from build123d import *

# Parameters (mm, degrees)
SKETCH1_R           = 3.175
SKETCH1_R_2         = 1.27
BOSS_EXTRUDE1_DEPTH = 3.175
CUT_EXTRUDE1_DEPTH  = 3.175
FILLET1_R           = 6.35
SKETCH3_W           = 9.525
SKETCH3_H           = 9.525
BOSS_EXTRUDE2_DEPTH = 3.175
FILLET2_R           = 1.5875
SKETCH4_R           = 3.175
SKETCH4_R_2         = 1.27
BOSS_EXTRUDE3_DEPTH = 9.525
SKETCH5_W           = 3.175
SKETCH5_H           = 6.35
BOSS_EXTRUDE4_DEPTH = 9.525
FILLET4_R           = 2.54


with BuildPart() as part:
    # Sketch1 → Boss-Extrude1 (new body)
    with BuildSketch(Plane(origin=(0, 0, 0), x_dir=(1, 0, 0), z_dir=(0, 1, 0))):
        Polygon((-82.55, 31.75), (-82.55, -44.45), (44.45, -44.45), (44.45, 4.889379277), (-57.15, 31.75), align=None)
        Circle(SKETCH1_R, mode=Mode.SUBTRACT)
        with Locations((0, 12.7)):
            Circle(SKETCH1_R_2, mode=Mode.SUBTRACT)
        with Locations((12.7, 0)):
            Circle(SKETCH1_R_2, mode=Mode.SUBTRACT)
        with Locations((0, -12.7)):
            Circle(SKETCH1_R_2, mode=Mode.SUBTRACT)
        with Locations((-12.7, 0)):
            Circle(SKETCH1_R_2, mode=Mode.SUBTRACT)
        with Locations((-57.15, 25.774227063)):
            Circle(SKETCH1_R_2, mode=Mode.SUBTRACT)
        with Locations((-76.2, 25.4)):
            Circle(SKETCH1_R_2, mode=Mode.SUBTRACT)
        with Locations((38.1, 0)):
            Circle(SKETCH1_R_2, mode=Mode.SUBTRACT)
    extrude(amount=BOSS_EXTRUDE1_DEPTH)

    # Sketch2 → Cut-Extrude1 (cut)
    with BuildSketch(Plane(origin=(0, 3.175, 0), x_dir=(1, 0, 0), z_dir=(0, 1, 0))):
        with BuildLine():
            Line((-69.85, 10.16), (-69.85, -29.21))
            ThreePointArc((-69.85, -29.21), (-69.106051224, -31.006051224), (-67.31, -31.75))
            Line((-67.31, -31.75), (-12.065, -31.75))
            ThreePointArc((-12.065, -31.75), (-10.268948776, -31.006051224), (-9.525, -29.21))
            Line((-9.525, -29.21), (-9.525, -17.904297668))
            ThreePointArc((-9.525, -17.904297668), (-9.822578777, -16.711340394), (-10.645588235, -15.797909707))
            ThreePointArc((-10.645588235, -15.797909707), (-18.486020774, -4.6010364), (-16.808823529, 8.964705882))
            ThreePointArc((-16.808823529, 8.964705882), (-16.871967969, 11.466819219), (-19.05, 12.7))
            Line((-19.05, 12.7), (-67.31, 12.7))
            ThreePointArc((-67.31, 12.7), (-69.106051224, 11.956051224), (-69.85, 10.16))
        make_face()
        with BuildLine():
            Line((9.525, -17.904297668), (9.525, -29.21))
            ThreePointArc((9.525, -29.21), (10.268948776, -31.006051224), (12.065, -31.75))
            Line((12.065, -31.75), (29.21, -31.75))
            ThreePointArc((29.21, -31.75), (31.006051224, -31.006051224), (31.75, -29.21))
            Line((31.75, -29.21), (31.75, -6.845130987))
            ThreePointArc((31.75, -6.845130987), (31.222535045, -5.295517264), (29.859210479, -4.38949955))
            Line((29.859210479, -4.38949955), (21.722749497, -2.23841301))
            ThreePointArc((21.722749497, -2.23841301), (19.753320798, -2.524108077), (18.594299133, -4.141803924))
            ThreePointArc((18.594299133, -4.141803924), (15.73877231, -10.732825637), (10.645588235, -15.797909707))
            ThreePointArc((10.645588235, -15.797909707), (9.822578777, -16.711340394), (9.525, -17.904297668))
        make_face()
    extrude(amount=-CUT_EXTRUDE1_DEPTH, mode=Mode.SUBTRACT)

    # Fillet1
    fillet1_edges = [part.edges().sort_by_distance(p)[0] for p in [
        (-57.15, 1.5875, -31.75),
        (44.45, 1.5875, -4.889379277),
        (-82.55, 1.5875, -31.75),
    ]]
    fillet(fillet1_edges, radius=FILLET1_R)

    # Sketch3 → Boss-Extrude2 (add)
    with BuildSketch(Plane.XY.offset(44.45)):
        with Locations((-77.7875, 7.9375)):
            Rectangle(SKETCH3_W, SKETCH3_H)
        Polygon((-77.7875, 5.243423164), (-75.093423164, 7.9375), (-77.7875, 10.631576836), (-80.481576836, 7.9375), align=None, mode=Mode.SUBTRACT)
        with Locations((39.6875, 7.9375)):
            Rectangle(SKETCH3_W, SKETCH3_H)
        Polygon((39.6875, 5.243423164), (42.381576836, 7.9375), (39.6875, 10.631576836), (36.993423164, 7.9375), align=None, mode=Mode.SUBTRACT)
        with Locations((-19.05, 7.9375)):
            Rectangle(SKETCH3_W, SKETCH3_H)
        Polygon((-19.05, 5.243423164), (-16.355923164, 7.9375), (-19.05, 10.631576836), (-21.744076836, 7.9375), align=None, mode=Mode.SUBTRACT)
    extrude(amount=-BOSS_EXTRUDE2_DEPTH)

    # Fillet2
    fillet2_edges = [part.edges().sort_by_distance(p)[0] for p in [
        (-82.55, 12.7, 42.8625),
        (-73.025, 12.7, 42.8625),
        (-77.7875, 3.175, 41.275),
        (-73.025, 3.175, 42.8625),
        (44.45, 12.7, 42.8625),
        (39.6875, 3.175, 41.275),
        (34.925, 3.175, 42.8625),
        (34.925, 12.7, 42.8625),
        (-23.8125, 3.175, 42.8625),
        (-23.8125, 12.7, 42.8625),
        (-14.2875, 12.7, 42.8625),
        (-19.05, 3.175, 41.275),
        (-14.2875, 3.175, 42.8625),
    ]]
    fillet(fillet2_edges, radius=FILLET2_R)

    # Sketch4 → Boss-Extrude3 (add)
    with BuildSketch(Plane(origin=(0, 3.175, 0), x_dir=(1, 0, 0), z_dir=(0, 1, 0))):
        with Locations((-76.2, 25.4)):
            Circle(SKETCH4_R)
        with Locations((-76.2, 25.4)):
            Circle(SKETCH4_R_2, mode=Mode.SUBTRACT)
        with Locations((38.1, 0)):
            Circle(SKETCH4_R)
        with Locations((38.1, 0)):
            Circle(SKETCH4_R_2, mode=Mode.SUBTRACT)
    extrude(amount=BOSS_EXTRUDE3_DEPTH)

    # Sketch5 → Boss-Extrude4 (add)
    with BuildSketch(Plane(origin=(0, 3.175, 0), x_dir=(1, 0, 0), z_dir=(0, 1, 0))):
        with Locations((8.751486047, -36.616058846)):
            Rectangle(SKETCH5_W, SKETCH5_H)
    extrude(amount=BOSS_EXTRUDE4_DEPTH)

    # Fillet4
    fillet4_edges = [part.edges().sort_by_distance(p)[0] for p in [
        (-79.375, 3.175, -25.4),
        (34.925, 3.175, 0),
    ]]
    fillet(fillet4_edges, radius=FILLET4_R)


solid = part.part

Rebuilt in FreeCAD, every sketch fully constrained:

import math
import FreeCAD as App
import Part
import Sketcher
Q = App.Units.Quantity


def edges_at(feature, points):
    """Names of the edges that pass closest to the given points."""
    edges = feature.Shape.Edges
    near = lambda p: min(range(len(edges)), key=lambda i: edges[i].distToShape(Part.Vertex(*p))[0])
    return sorted({f"Edge{near(p) + 1}" for p in points})

doc = App.newDocument("Part")
params = doc.addObject("Spreadsheet::Sheet", "Params")
for row, (alias, value) in enumerate([
    ("sketch1_diameter", "0.1 in"),
    ("sketch1_diameter2", "0.25 in"),
    ("sketch1_width", "5 in"),
    ("sketch1_width2", "1 in"),
    ("sketch1_height", "3 in"),
    ("pad1_length", "0.125 in"),
    ("sketch2_radius", "0.1 in"),
    ("sketch2_radius2", "0.75 in"),
    ("sketch2_width", "1.9 in"),
    ("sketch2_height", "1.55 in"),
    ("sketch2_width2", "2.175 in"),
    ("pocket1_length", "0.125 in"),
    ("fillet_radius", "0.25 in"),
    ("sketch3_length", "0.15 in"),
    ("sketch3_width", "0.375 in"),
    ("pad2_length", "0.125 in"),
    ("fillet2_radius", "0.0625 in"),
    ("sketch4_diameter", "0.1 in"),
    ("sketch4_diameter2", "0.25 in"),
    ("pad3_length", "0.375 in"),
    ("sketch5_height", "0.25 in"),
    ("sketch5_width", "0.125 in"),
    ("pad4_length", "0.375 in"),
    ("fillet3_radius", "0.1 in"),
], start=1):
    params.set(f"A{row}", alias)
    params.set(f"B{row}", "=" + value)
    params.setAlias(f"B{row}", alias)

body = doc.addObject("PartDesign::Body", "Body")

# Sketch on XZ plane
sketch1 = body.newObject("Sketcher::SketchObject", "Sketch")
sketch1.AttachmentSupport = (doc.getObject("XZ_Plane"), [""])
sketch1.MapMode = "FlatFace"
sketch1.addGeometry([
    Part.LineSegment(App.Vector(-82.5, -31.8, 0), App.Vector(-82.5, 44.5, 0)),  # 0
    Part.LineSegment(App.Vector(-82.5, 44.5, 0), App.Vector(44.5, 44.5, 0)),  # 1
    Part.LineSegment(App.Vector(44.5, 44.5, 0), App.Vector(44.5, -4.9, 0)),  # 2
    Part.LineSegment(App.Vector(44.5, -4.9, 0), App.Vector(-57.1, -31.8, 0)),  # 3
    Part.LineSegment(App.Vector(-57.1, -31.8, 0), App.Vector(-82.5, -31.8, 0)),  # 4
    Part.Circle(App.Vector(0, 12.7, 0), App.Vector(0, 0, 1), 1.3),  # 5
    Part.Circle(App.Vector(-12.7, 0, 0), App.Vector(0, 0, 1), 1.3),  # 6
    Part.Circle(App.Vector(0, 0, 0), App.Vector(0, 0, 1), 3.2),  # 7
    Part.Circle(App.Vector(12.7, 0, 0), App.Vector(0, 0, 1), 1.3),  # 8
    Part.Circle(App.Vector(38.1, 0, 0), App.Vector(0, 0, 1), 1.3),  # 9
    Part.Circle(App.Vector(-76.2, -25.4, 0), App.Vector(0, 0, 1), 1.3),  # 10
    Part.Circle(App.Vector(-57.1, -25.8, 0), App.Vector(0, 0, 1), 1.3),  # 11
    Part.Circle(App.Vector(0, -12.7, 0), App.Vector(0, 0, 1), 1.3),  # 12
], False)
sketch1.addConstraint([
    Sketcher.Constraint("Coincident", 0, 2, 1, 1),
    Sketcher.Constraint("Coincident", 1, 2, 2, 1),
    Sketcher.Constraint("Coincident", 2, 2, 3, 1),
    Sketcher.Constraint("Coincident", 3, 2, 4, 1),
    Sketcher.Constraint("Coincident", 4, 2, 0, 1),
    Sketcher.Constraint("Vertical", 0),
    Sketcher.Constraint("Horizontal", 1),
    Sketcher.Constraint("Vertical", 2),
    Sketcher.Constraint("Horizontal", 4),
    Sketcher.Constraint("Coincident", 7, 3, -1, 1),
    Sketcher.Constraint("Equal", 5, 6),
    Sketcher.Constraint("Equal", 6, 8),
    Sketcher.Constraint("Equal", 8, 9),
    Sketcher.Constraint("Equal", 9, 10),
    Sketcher.Constraint("Equal", 10, 11),
    Sketcher.Constraint("Equal", 11, 12),
    Sketcher.Constraint("Symmetric", 6, 3, 8, 3, -1, 1),
    Sketcher.Constraint("Symmetric", 5, 3, 12, 3, -1, 1),
    Sketcher.Constraint("PointOnObject", 5, 3, -2),
    Sketcher.Constraint("PointOnObject", 6, 3, -1),
    Sketcher.Constraint("PointOnObject", 9, 3, -1),
    Sketcher.Constraint("Vertical", 11, 3, 3, 2),
    Sketcher.Constraint("Diameter", 5, Q("0.1 in")),
    Sketcher.Constraint("Diameter", 7, Q("0.25 in")),
    Sketcher.Constraint("DistanceX", 1, 1, 1, 2, Q("5 in")),
    Sketcher.Constraint("DistanceX", 4, 2, 4, 1, Q("1 in")),
    Sketcher.Constraint("DistanceY", 0, 1, 0, 2, Q("3 in")),
    Sketcher.Constraint("DistanceX", 10, 3, -1, 1, Q("3 in")),
    Sketcher.Constraint("DistanceY", 10, 3, -1, 1, Q("1 in")),
    Sketcher.Constraint("DistanceX", 6, 3, 8, 3, Q("1 in")),
    Sketcher.Constraint("DistanceX", 8, 3, 9, 3, Q("1 in")),
    Sketcher.Constraint("DistanceY", 12, 3, 5, 3, Q("1 in")),
    Sketcher.Constraint("DistanceX", 11, 3, -1, 1, Q("2.25 in")),
    Sketcher.Constraint("DistanceY", -1, 1, 0, 2, Q("1.75 in")),
    Sketcher.Constraint("DistanceY", 2, 2, 2, 1, 49.339379),
    Sketcher.Constraint("DistanceY", 11, 3, -1, 1, 25.774227),
])
sketch1.setExpression("Constraints[22]", "Params.sketch1_diameter")
sketch1.setExpression("Constraints[23]", "Params.sketch1_diameter2")
sketch1.setExpression("Constraints[24]", "Params.sketch1_width")
sketch1.setExpression("Constraints[25]", "Params.sketch1_width2")
sketch1.setExpression("Constraints[26]", "Params.sketch1_height")
pad1 = body.newObject("PartDesign::Pad", "Pad")
pad1.Profile = sketch1
pad1.setExpression("Length", "Params.pad1_length")
pad1.Reversed = True

# Sketch on XZ plane
sketch2 = body.newObject("Sketcher::SketchObject", "Sketch001")
sketch2.AttachmentSupport = (doc.getObject("XZ_Plane"), [""])
sketch2.MapMode = "FlatFace"
sketch2.AttachmentOffset = App.Placement(App.Vector(0, 0, -0.125 * 25.4), App.Rotation())
sketch2.addGeometry([
    Part.LineSegment(App.Vector(-69.8, -10.2, 0), App.Vector(-69.8, 29.2, 0)),  # 0
    Part.ArcOfCircle(Part.Circle(App.Vector(-67.3, 29.2, 0), App.Vector(0, 0, 1), 2.5), math.radians(90), math.radians(180)),  # 1
    Part.LineSegment(App.Vector(-67.3, 31.8, 0), App.Vector(-12.1, 31.8, 0)),  # 2
    Part.ArcOfCircle(Part.Circle(App.Vector(-12.1, 29.2, 0), App.Vector(0, 0, 1), 2.5), math.radians(0), math.radians(90)),  # 3
    Part.LineSegment(App.Vector(-9.5, 29.2, 0), App.Vector(-9.5, 17.9, 0)),  # 4
    Part.ArcOfCircle(Part.Circle(App.Vector(-12.1, 17.9, 0), App.Vector(0, 0, 1), 2.5), math.radians(-56), math.radians(0)),  # 5
    Part.ArcOfCircle(Part.Circle(App.Vector(0, 0, 0), App.Vector(0, 0, 1), 19), math.radians(124), math.radians(208)),  # 6
    Part.ArcOfCircle(Part.Circle(App.Vector(-19.1, -10.2, 0), App.Vector(0, 0, 1), 2.5), math.radians(-90), math.radians(28)),  # 7
    Part.LineSegment(App.Vector(-19.1, -12.7, 0), App.Vector(-67.3, -12.7, 0)),  # 8
    Part.ArcOfCircle(Part.Circle(App.Vector(-67.3, -10.2, 0), App.Vector(0, 0, 1), 2.5), math.radians(-180), math.radians(-90)),  # 9
    Part.LineSegment(App.Vector(9.5, 17.9, 0), App.Vector(9.5, 29.2, 0)),  # 10
    Part.ArcOfCircle(Part.Circle(App.Vector(12.1, 29.2, 0), App.Vector(0, 0, 1), 2.5), math.radians(90), math.radians(180)),  # 11
    Part.LineSegment(App.Vector(12.1, 31.8, 0), App.Vector(29.2, 31.8, 0)),  # 12
    Part.ArcOfCircle(Part.Circle(App.Vector(29.2, 29.2, 0), App.Vector(0, 0, 1), 2.5), math.radians(0), math.radians(90)),  # 13
    Part.LineSegment(App.Vector(31.8, 29.2, 0), App.Vector(31.8, 6.8, 0)),  # 14
    Part.ArcOfCircle(Part.Circle(App.Vector(29.2, 6.8, 0), App.Vector(0, 0, 1), 2.5), math.radians(-75), math.radians(0)),  # 15
    Part.LineSegment(App.Vector(29.9, 4.4, 0), App.Vector(21.7, 2.2, 0)),  # 16
    Part.ArcOfCircle(Part.Circle(App.Vector(21.1, 4.7, 0), App.Vector(0, 0, 1), 2.5), math.radians(-167), math.radians(-75)),  # 17
    Part.ArcOfCircle(Part.Circle(App.Vector(0, 0, 0), App.Vector(0, 0, 1), 19.1), math.radians(13), math.radians(56)),  # 18
    Part.ArcOfCircle(Part.Circle(App.Vector(12.1, 17.9, 0), App.Vector(0, 0, 1), 2.5), math.radians(-180), math.radians(-124)),  # 19
], False)
sketch2.addConstraint([
    Sketcher.Constraint("Tangent", 0, 2, 1, 2),
    Sketcher.Constraint("Tangent", 1, 1, 2, 1),
    Sketcher.Constraint("Tangent", 2, 2, 3, 2),
    Sketcher.Constraint("Tangent", 3, 1, 4, 1),
    Sketcher.Constraint("Tangent", 4, 2, 5, 2),
    Sketcher.Constraint("Tangent", 5, 1, 6, 1),
    Sketcher.Constraint("Tangent", 6, 2, 7, 2),
    Sketcher.Constraint("Tangent", 7, 1, 8, 1),
    Sketcher.Constraint("Tangent", 8, 2, 9, 2),
    Sketcher.Constraint("Tangent", 9, 1, 0, 1),
    Sketcher.Constraint("Tangent", 10, 2, 11, 2),
    Sketcher.Constraint("Tangent", 11, 1, 12, 1),
    Sketcher.Constraint("Tangent", 12, 2, 13, 2),
    Sketcher.Constraint("Tangent", 13, 1, 14, 1),
    Sketcher.Constraint("Tangent", 14, 2, 15, 2),
    Sketcher.Constraint("Tangent", 15, 1, 16, 1),
    Sketcher.Constraint("Tangent", 16, 2, 17, 2),
    Sketcher.Constraint("Tangent", 17, 1, 18, 1),
    Sketcher.Constraint("Tangent", 18, 2, 19, 2),
    Sketcher.Constraint("Tangent", 19, 1, 10, 1),
    Sketcher.Constraint("Vertical", 0),
    Sketcher.Constraint("Horizontal", 2),
    Sketcher.Constraint("Vertical", 4),
    Sketcher.Constraint("Horizontal", 8),
    Sketcher.Constraint("Vertical", 10),
    Sketcher.Constraint("Horizontal", 12),
    Sketcher.Constraint("Vertical", 14),
    Sketcher.Constraint("Coincident", 6, 3, -1, 1),
    Sketcher.Constraint("Coincident", 18, 3, -1, 1),
    Sketcher.Constraint("Equal", 1, 3),
    Sketcher.Constraint("Equal", 3, 5),
    Sketcher.Constraint("Equal", 5, 7),
    Sketcher.Constraint("Equal", 7, 9),
    Sketcher.Constraint("Equal", 9, 11),
    Sketcher.Constraint("Equal", 11, 13),
    Sketcher.Constraint("Equal", 13, 15),
    Sketcher.Constraint("Equal", 15, 17),
    Sketcher.Constraint("Equal", 6, 18),
    Sketcher.Constraint("Equal", 17, 19),
    Sketcher.Constraint("Symmetric", 3, 3, 11, 3, -2),
    Sketcher.Constraint("Radius", 1, Q("0.1 in")),
    Sketcher.Constraint("Radius", 6, Q("0.75 in")),
    Sketcher.Constraint("DistanceX", 8, 2, 8, 1, Q("1.9 in")),
    Sketcher.Constraint("DistanceY", 0, 1, 0, 2, Q("1.55 in")),
    Sketcher.Constraint("DistanceY", 7, 3, -1, 1, Q("0.4 in")),
    Sketcher.Constraint("DistanceX", 7, 3, 13, 3, Q("1.9 in")),
    Sketcher.Constraint("DistanceX", 2, 1, 2, 2, Q("2.175 in")),
    Sketcher.Constraint("DistanceY", 14, 2, 14, 1, 22.364869),
    Sketcher.Constraint("DistanceY", -1, 1, 15, 1, 4.3895),
])
sketch2.setExpression("Constraints[40]", "Params.sketch2_radius")
sketch2.setExpression("Constraints[41]", "Params.sketch2_radius2")
sketch2.setExpression("Constraints[42]", "Params.sketch2_width")
sketch2.setExpression("Constraints[43]", "Params.sketch2_height")
sketch2.setExpression("Constraints[46]", "Params.sketch2_width2")
pocket1 = body.newObject("PartDesign::Pocket", "Pocket")
pocket1.Profile = sketch2
pocket1.setExpression("Length", "Params.pocket1_length")
pocket1.Reversed = True
doc.recompute()

fillet = body.newObject("PartDesign::Fillet", "Fillet")
fillet.Base = (pocket1, edges_at(pocket1, [(-57.15, 1.587, -31.75), (44.45, 1.587, -4.889), (-82.55, 1.587, -31.75)]))
fillet.setExpression("Radius", "Params.fillet_radius")

# Sketch on XY plane
sketch3 = body.newObject("Sketcher::SketchObject", "Sketch002")
sketch3.AttachmentSupport = (doc.getObject("XY_Plane"), [""])
sketch3.MapMode = "FlatFace"
sketch3.AttachmentOffset = App.Placement(App.Vector(0, 0, 1.75 * 25.4), App.Rotation())
sketch3.addGeometry([
    Part.LineSegment(App.Vector(-82.5, 12.7, 0), App.Vector(-82.5, 3.2, 0)),  # 0
    Part.LineSegment(App.Vector(-82.5, 3.2, 0), App.Vector(-73, 3.2, 0)),  # 1
    Part.LineSegment(App.Vector(-73, 3.2, 0), App.Vector(-73, 12.7, 0)),  # 2
    Part.LineSegment(App.Vector(-73, 12.7, 0), App.Vector(-82.5, 12.7, 0)),  # 3
    Part.LineSegment(App.Vector(-75.1, 7.9, 0), App.Vector(-77.8, 5.2, 0)),  # 4
    Part.LineSegment(App.Vector(-77.8, 5.2, 0), App.Vector(-80.5, 7.9, 0)),  # 5
    Part.LineSegment(App.Vector(-80.5, 7.9, 0), App.Vector(-77.8, 10.6, 0)),  # 6
    Part.LineSegment(App.Vector(-77.8, 10.6, 0), App.Vector(-75.1, 7.9, 0)),  # 7
    Part.LineSegment(App.Vector(34.9, 12.7, 0), App.Vector(34.9, 3.2, 0)),  # 8
    Part.LineSegment(App.Vector(34.9, 3.2, 0), App.Vector(44.5, 3.2, 0)),  # 9
    Part.LineSegment(App.Vector(44.5, 3.2, 0), App.Vector(44.5, 12.7, 0)),  # 10
    Part.LineSegment(App.Vector(44.5, 12.7, 0), App.Vector(34.9, 12.7, 0)),  # 11
    Part.LineSegment(App.Vector(42.4, 7.9, 0), App.Vector(39.7, 5.2, 0)),  # 12
    Part.LineSegment(App.Vector(39.7, 5.2, 0), App.Vector(37, 7.9, 0)),  # 13
    Part.LineSegment(App.Vector(37, 7.9, 0), App.Vector(39.7, 10.6, 0)),  # 14
    Part.LineSegment(App.Vector(39.7, 10.6, 0), App.Vector(42.4, 7.9, 0)),  # 15
    Part.LineSegment(App.Vector(-23.8, 12.7, 0), App.Vector(-23.8, 3.2, 0)),  # 16
    Part.LineSegment(App.Vector(-23.8, 3.2, 0), App.Vector(-14.3, 3.2, 0)),  # 17
    Part.LineSegment(App.Vector(-14.3, 3.2, 0), App.Vector(-14.3, 12.7, 0)),  # 18
    Part.LineSegment(App.Vector(-14.3, 12.7, 0), App.Vector(-23.8, 12.7, 0)),  # 19
    Part.LineSegment(App.Vector(-16.4, 7.9, 0), App.Vector(-19.1, 5.2, 0)),  # 20
    Part.LineSegment(App.Vector(-19.1, 5.2, 0), App.Vector(-21.7, 7.9, 0)),  # 21
    Part.LineSegment(App.Vector(-21.7, 7.9, 0), App.Vector(-19.1, 10.6, 0)),  # 22
    Part.LineSegment(App.Vector(-19.1, 10.6, 0), App.Vector(-16.4, 7.9, 0)),  # 23
], False)
sketch3.addConstraint([
    Sketcher.Constraint("Coincident", 0, 2, 1, 1),
    Sketcher.Constraint("Coincident", 1, 2, 2, 1),
    Sketcher.Constraint("Coincident", 2, 2, 3, 1),
    Sketcher.Constraint("Coincident", 3, 2, 0, 1),
    Sketcher.Constraint("Coincident", 4, 2, 5, 1),
    Sketcher.Constraint("Coincident", 5, 2, 6, 1),
    Sketcher.Constraint("Coincident", 6, 2, 7, 1),
    Sketcher.Constraint("Coincident", 7, 2, 4, 1),
    Sketcher.Constraint("Coincident", 8, 2, 9, 1),
    Sketcher.Constraint("Coincident", 9, 2, 10, 1),
    Sketcher.Constraint("Coincident", 10, 2, 11, 1),
    Sketcher.Constraint("Coincident", 11, 2, 8, 1),
    Sketcher.Constraint("Coincident", 12, 2, 13, 1),
    Sketcher.Constraint("Coincident", 13, 2, 14, 1),
    Sketcher.Constraint("Coincident", 14, 2, 15, 1),
    Sketcher.Constraint("Coincident", 15, 2, 12, 1),
    Sketcher.Constraint("Coincident", 16, 2, 17, 1),
    Sketcher.Constraint("Coincident", 17, 2, 18, 1),
    Sketcher.Constraint("Coincident", 18, 2, 19, 1),
    Sketcher.Constraint("Coincident", 19, 2, 16, 1),
    Sketcher.Constraint("Coincident", 20, 2, 21, 1),
    Sketcher.Constraint("Coincident", 21, 2, 22, 1),
    Sketcher.Constraint("Coincident", 22, 2, 23, 1),
    Sketcher.Constraint("Coincident", 23, 2, 20, 1),
    Sketcher.Constraint("Vertical", 0),
    Sketcher.Constraint("Horizontal", 1),
    Sketcher.Constraint("Vertical", 2),
    Sketcher.Constraint("Horizontal", 3),
    Sketcher.Constraint("Vertical", 8),
    Sketcher.Constraint("Horizontal", 9),
    Sketcher.Constraint("Vertical", 10),
    Sketcher.Constraint("Horizontal", 11),
    Sketcher.Constraint("Vertical", 16),
    Sketcher.Constraint("Horizontal", 17),
    Sketcher.Constraint("Vertical", 18),
    Sketcher.Constraint("Horizontal", 19),
    Sketcher.Constraint("Perpendicular", 4, 5),
    Sketcher.Constraint("Perpendicular", 5, 6),
    Sketcher.Constraint("Perpendicular", 6, 7),
    Sketcher.Constraint("Perpendicular", 7, 12),
    Sketcher.Constraint("Perpendicular", 12, 13),
    Sketcher.Constraint("Perpendicular", 13, 14),
    Sketcher.Constraint("Perpendicular", 14, 15),
    Sketcher.Constraint("Perpendicular", 15, 20),
    Sketcher.Constraint("Perpendicular", 20, 21),
    Sketcher.Constraint("Perpendicular", 21, 22),
    Sketcher.Constraint("Perpendicular", 22, 23),
    Sketcher.Constraint("Horizontal", 5, 2, 7, 2),
    Sketcher.Constraint("Horizontal", 1, 2, 8, 2),
    Sketcher.Constraint("Horizontal", 3, 2, 10, 2),
    Sketcher.Constraint("Horizontal", 4, 2, 12, 2),
    Sketcher.Constraint("Horizontal", 7, 2, 13, 2),
    Sketcher.Constraint("Horizontal", 6, 2, 14, 2),
    Sketcher.Constraint("Horizontal", 9, 2, 16, 2),
    Sketcher.Constraint("Horizontal", 11, 2, 18, 2),
    Sketcher.Constraint("Horizontal", 12, 2, 20, 2),
    Sketcher.Constraint("Horizontal", 15, 2, 21, 2),
    Sketcher.Constraint("Horizontal", 14, 2, 22, 2),
    Sketcher.Constraint("Vertical", 4, 2, 6, 2),
    Sketcher.Constraint("Equal", 3, 9),
    Sketcher.Constraint("Equal", 11, 17),
    Sketcher.Constraint("Equal", 19, 0),
    Sketcher.Constraint("DistanceY", -1, 1, 2, 2, Q("0.5 in")),
    Sketcher.Constraint("Distance", 4, Q("0.15 in")),
    Sketcher.Constraint("DistanceX", 1, 1, 1, 2, Q("0.375 in")),
    Sketcher.Constraint("DistanceX", 0, 2, -1, 1, Q("3.25 in")),
    Sketcher.Constraint("DistanceX", -1, 1, 9, 2, Q("1.75 in")),
    Sketcher.Constraint("DistanceX", 20, 2, -1, 1, Q("0.75 in")),
    Sketcher.Constraint("DistanceX", 4, 2, -1, 1, Q("3.0625 in")),
    Sketcher.Constraint("DistanceY", -1, 1, 5, 2, Q("0.3125 in")),
    Sketcher.Constraint("DistanceX", -1, 1, 12, 2, Q("1.5625 in")),
    Sketcher.Constraint("DistanceX", 16, 2, -1, 1, Q("0.9375 in")),
])
sketch3.setExpression("Constraints[63]", "Params.sketch3_length")
sketch3.setExpression("Constraints[64]", "Params.sketch3_width")
pad2 = body.newObject("PartDesign::Pad", "Pad001")
pad2.Profile = sketch3
pad2.setExpression("Length", "Params.pad2_length")
pad2.Reversed = True
doc.recompute()

fillet2 = body.newObject("PartDesign::Fillet", "Fillet001")
fillet2.Base = (pad2, edges_at(pad2, [
    (-82.55, 12.7, 42.862),
    (-73.025, 12.7, 42.862),
    (-77.787, 3.175, 41.275),
    (-73.025, 3.175, 42.862),
    (44.45, 12.7, 42.862),
    (39.688, 3.175, 41.275),
    (34.925, 3.175, 42.862),
    (34.925, 12.7, 42.862),
    (-23.812, 3.175, 42.862),
    (-23.812, 12.7, 42.862),
    (-14.287, 12.7, 42.862),
    (-19.05, 3.175, 41.275),
    (-14.287, 3.175, 42.862),
]))
fillet2.setExpression("Radius", "Params.fillet2_radius")

# Sketch on XZ plane
sketch4 = body.newObject("Sketcher::SketchObject", "Sketch003")
sketch4.AttachmentSupport = (doc.getObject("XZ_Plane"), [""])
sketch4.MapMode = "FlatFace"
sketch4.AttachmentOffset = App.Placement(App.Vector(0, 0, -0.125 * 25.4), App.Rotation())
sketch4.addGeometry([
    Part.Circle(App.Vector(-76.2, -25.4, 0), App.Vector(0, 0, 1), 3.2),
    Part.Circle(App.Vector(-76.2, -25.4, 0), App.Vector(0, 0, 1), 1.3),
    Part.Circle(App.Vector(38.1, 0, 0), App.Vector(0, 0, 1), 3.2),
    Part.Circle(App.Vector(38.1, 0, 0), App.Vector(0, 0, 1), 1.3),
], False)
sketch4.addConstraint([
    Sketcher.Constraint("Coincident", 1, 3, 0, 3),
    Sketcher.Constraint("Coincident", 3, 3, 2, 3),
    Sketcher.Constraint("Equal", 0, 2),
    Sketcher.Constraint("Equal", 1, 3),
    Sketcher.Constraint("PointOnObject", 2, 3, -1),
    Sketcher.Constraint("Diameter", 1, Q("0.1 in")),
    Sketcher.Constraint("Diameter", 0, Q("0.25 in")),
    Sketcher.Constraint("DistanceX", 0, 3, -1, 1, Q("3 in")),
    Sketcher.Constraint("DistanceY", 0, 3, -1, 1, Q("1 in")),
    Sketcher.Constraint("DistanceX", -1, 1, 2, 3, Q("1.5 in")),
])
sketch4.setExpression("Constraints[5]", "Params.sketch4_diameter")
sketch4.setExpression("Constraints[6]", "Params.sketch4_diameter2")
pad3 = body.newObject("PartDesign::Pad", "Pad002")
pad3.Profile = sketch4
pad3.setExpression("Length", "Params.pad3_length")
pad3.Reversed = True

# Sketch on XZ plane
sketch5 = body.newObject("Sketcher::SketchObject", "Sketch004")
sketch5.AttachmentSupport = (doc.getObject("XZ_Plane"), [""])
sketch5.MapMode = "FlatFace"
sketch5.AttachmentOffset = App.Placement(App.Vector(0, 0, -0.125 * 25.4), App.Rotation())
sketch5.addGeometry([
    Part.LineSegment(App.Vector(7.2, 33.4, 0), App.Vector(7.2, 39.8, 0)),
    Part.LineSegment(App.Vector(7.2, 39.8, 0), App.Vector(10.3, 39.8, 0)),
    Part.LineSegment(App.Vector(10.3, 39.8, 0), App.Vector(10.3, 33.4, 0)),
    Part.LineSegment(App.Vector(10.3, 33.4, 0), App.Vector(7.2, 33.4, 0)),
], False)
sketch5.addConstraint([
    Sketcher.Constraint("Coincident", 0, 2, 1, 1),
    Sketcher.Constraint("Coincident", 1, 2, 2, 1),
    Sketcher.Constraint("Coincident", 2, 2, 3, 1),
    Sketcher.Constraint("Coincident", 3, 2, 0, 1),
    Sketcher.Constraint("Vertical", 0),
    Sketcher.Constraint("Horizontal", 1),
    Sketcher.Constraint("Vertical", 2),
    Sketcher.Constraint("Horizontal", 3),
    Sketcher.Constraint("DistanceY", 0, 1, 0, 2, Q("0.25 in")),
    Sketcher.Constraint("DistanceX", 1, 1, 1, 2, Q("0.125 in")),
    Sketcher.Constraint("DistanceY", -1, 1, 0, 2, 39.791059),
    Sketcher.Constraint("DistanceX", -1, 1, 0, 2, 7.163986),
])
sketch5.setExpression("Constraints[8]", "Params.sketch5_height")
sketch5.setExpression("Constraints[9]", "Params.sketch5_width")
pad4 = body.newObject("PartDesign::Pad", "Pad003")
pad4.Profile = sketch5
pad4.setExpression("Length", "Params.pad4_length")
pad4.Reversed = True
doc.recompute()

fillet3 = body.newObject("PartDesign::Fillet", "Fillet002")
fillet3.Base = (pad4, edges_at(pad4, [(-79.375, 3.175, -25.4), (34.925, 3.175, 0)]))
fillet3.setExpression("Radius", "Params.fillet3_radius")

doc.recompute()
